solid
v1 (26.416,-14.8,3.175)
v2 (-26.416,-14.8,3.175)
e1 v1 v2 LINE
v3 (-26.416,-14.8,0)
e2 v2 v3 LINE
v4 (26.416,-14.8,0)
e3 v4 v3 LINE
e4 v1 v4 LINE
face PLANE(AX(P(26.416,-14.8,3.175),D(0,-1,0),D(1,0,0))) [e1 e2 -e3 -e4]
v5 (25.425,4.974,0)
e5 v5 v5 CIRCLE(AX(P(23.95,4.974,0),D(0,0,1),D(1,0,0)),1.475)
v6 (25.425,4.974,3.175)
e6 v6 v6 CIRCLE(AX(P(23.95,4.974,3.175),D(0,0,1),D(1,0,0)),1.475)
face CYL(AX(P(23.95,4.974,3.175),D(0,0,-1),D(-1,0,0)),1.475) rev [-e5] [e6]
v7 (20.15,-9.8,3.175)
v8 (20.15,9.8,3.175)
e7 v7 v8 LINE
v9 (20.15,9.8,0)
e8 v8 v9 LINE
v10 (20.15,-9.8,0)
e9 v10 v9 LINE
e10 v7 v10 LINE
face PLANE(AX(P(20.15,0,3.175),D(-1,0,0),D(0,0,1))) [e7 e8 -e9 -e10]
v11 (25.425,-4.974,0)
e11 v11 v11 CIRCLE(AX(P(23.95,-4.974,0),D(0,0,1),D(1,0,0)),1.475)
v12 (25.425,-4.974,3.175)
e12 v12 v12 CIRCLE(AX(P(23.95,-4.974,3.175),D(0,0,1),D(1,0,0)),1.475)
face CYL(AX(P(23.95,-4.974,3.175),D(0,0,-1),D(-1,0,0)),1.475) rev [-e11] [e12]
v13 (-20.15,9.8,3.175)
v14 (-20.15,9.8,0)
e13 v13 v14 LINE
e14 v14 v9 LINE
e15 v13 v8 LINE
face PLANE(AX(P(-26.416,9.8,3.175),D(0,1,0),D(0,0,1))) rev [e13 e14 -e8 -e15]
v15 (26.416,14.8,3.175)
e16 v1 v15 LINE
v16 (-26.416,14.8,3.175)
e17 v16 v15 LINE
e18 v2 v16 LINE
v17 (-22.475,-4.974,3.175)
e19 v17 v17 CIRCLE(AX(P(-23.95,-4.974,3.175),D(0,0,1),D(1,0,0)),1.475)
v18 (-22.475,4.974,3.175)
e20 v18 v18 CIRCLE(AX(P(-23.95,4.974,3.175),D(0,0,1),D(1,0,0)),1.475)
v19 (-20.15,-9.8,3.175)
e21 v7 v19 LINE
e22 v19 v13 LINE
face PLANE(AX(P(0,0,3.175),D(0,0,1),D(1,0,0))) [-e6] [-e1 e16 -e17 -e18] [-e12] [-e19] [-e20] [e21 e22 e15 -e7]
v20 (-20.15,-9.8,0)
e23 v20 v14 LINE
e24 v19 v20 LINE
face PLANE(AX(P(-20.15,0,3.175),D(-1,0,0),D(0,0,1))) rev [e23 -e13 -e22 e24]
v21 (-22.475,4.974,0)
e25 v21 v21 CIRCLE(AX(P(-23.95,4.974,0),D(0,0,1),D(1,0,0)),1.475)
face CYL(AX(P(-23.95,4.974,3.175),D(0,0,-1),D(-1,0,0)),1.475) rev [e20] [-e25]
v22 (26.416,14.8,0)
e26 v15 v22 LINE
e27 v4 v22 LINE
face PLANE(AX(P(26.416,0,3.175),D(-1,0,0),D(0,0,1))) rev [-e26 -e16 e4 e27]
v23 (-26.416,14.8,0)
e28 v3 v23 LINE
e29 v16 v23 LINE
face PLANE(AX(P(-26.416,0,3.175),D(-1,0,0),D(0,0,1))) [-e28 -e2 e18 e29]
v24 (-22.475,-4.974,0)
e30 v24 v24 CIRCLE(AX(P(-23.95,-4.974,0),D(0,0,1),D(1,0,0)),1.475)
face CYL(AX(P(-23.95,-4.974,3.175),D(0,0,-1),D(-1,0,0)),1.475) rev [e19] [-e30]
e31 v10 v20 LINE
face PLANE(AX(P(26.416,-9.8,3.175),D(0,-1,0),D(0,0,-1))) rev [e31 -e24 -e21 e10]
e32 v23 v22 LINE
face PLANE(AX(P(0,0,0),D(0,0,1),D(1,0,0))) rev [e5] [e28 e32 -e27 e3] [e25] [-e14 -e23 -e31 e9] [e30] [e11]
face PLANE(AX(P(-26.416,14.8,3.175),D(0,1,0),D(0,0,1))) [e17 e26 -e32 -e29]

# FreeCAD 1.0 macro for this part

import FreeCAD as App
import Part
import Sketcher

V = App.Vector

doc = App.newDocument("Part")
params = doc.addObject("Spreadsheet::Sheet", "Params")
for row, (alias, value) in enumerate([
    ("sketch1_diameter", "2.95 mm"),
    ("sketch1_width", "40.3 mm"),
    ("sketch1_height", "29.6 mm"),
    ("sketch1_height2", "19.6 mm"),
    ("pad1_length", "3.175 mm"),
], start=1):
    params.set(f"A{row}", alias)
    params.set(f"B{row}", "=" + value)
    params.setAlias(f"B{row}", alias)

body = doc.addObject("PartDesign::Body", "Body")

sketch1 = body.newObject("Sketcher::SketchObject", "Sketch")
sketch1.AttachmentSupport = (doc.getObject("XY_Plane"), [""])
sketch1.MapMode = "FlatFace"
sketch1.addGeometry([
    Part.LineSegment(V(-26.4, -14.8, 0), V(26.4, -14.8, 0)),
    Part.LineSegment(V(26.4, -14.8, 0), V(26.4, 14.8, 0)),
    Part.LineSegment(V(26.4, 14.8, 0), V(-26.4, 14.8, 0)),
    Part.LineSegment(V(-26.4, 14.8, 0), V(-26.4, -14.8, 0)),
    Part.LineSegment(V(-20.1, -9.8, 0), V(-20.1, 9.8, 0)),
    Part.LineSegment(V(-20.1, 9.8, 0), V(20.1, 9.8, 0)),
    Part.LineSegment(V(20.1, 9.8, 0), V(20.1, -9.8, 0)),
    Part.LineSegment(V(20.1, -9.8, 0), V(-20.1, -9.8, 0)),
    Part.Circle(V(-23.9, -5, 0), V(0, 0, 1), 1.5),
    Part.Circle(V(-23.9, 5, 0), V(0, 0, 1), 1.5),
    Part.Circle(V(23.9, 5, 0), V(0, 0, 1), 1.5),
    Part.Circle(V(23.9, -5, 0), V(0, 0, 1), 1.5),
], False)
sketch1.addConstraint([
    Sketcher.Constraint("Coincident", 0, 2, 1, 1),
    Sketcher.Constraint("Coincident", 1, 2, 2, 1),
    Sketcher.Constraint("Coincident", 2, 2, 3, 1),
    Sketcher.Constraint("Coincident", 3, 2, 0, 1),
    Sketcher.Constraint("Coincident", 4, 2, 5, 1),
    Sketcher.Constraint("Coincident", 5, 2, 6, 1),
    Sketcher.Constraint("Coincident", 6, 2, 7, 1),
    Sketcher.Constraint("Coincident", 7, 2, 4, 1),
    Sketcher.Constraint("Horizontal", 0),
    Sketcher.Constraint("Vertical", 1),
    Sketcher.Constraint("Horizontal", 2),
    Sketcher.Constraint("Vertical", 3),
    Sketcher.Constraint("Vertical", 4),
    Sketcher.Constraint("Horizontal", 5),
    Sketcher.Constraint("Vertical", 6),
    Sketcher.Constraint("Horizontal", 7),
    Sketcher.Constraint("Equal", 8, 9),
    Sketcher.Constraint("Equal", 9, 10),
    Sketcher.Constraint("Equal", 10, 11),
    Sketcher.Constraint("Symmetric", 8, 3, 10, 3, -1, 1),
    Sketcher.Constraint("Symmetric", 9, 3, 11, 3, -1, 1),
    Sketcher.Constraint("Symmetric", 0, 2, 2, 2, -1, 1),
    Sketcher.Constraint("Symmetric", 4, 2, 6, 2, -1, 1),
    Sketcher.Constraint("Symmetric", 9, 3, 10, 3, -2),
    Sketcher.Constraint("Diameter", 8, 2.95),
    Sketcher.Constraint("DistanceX", 5, 1, 5, 2, 40.3),
    Sketcher.Constraint("DistanceY", 1, 1, 1, 2, 29.6),
    Sketcher.Constraint("DistanceY", 4, 1, 4, 2, 19.6),
    Sketcher.Constraint("DistanceX", 9, 3, 10, 3, 47.9),
    Sketcher.Constraint("DistanceX", 0, 1, 0, 2, 52.832),
    Sketcher.Constraint("DistanceY", 8, 3, -1, 1, 4.974),
])
sketch1.setExpression("Constraints[24]", "Params.sketch1_diameter")
sketch1.setExpression("Constraints[25]", "Params.sketch1_width")
sketch1.setExpression("Constraints[26]", "Params.sketch1_height")
sketch1.setExpression("Constraints[27]", "Params.sketch1_height2")
pad1 = body.newObject("PartDesign::Pad", "Pad")
pad1.Profile = sketch1
pad1.setExpression("Length", "Params.pad1_length")

doc.recompute()
